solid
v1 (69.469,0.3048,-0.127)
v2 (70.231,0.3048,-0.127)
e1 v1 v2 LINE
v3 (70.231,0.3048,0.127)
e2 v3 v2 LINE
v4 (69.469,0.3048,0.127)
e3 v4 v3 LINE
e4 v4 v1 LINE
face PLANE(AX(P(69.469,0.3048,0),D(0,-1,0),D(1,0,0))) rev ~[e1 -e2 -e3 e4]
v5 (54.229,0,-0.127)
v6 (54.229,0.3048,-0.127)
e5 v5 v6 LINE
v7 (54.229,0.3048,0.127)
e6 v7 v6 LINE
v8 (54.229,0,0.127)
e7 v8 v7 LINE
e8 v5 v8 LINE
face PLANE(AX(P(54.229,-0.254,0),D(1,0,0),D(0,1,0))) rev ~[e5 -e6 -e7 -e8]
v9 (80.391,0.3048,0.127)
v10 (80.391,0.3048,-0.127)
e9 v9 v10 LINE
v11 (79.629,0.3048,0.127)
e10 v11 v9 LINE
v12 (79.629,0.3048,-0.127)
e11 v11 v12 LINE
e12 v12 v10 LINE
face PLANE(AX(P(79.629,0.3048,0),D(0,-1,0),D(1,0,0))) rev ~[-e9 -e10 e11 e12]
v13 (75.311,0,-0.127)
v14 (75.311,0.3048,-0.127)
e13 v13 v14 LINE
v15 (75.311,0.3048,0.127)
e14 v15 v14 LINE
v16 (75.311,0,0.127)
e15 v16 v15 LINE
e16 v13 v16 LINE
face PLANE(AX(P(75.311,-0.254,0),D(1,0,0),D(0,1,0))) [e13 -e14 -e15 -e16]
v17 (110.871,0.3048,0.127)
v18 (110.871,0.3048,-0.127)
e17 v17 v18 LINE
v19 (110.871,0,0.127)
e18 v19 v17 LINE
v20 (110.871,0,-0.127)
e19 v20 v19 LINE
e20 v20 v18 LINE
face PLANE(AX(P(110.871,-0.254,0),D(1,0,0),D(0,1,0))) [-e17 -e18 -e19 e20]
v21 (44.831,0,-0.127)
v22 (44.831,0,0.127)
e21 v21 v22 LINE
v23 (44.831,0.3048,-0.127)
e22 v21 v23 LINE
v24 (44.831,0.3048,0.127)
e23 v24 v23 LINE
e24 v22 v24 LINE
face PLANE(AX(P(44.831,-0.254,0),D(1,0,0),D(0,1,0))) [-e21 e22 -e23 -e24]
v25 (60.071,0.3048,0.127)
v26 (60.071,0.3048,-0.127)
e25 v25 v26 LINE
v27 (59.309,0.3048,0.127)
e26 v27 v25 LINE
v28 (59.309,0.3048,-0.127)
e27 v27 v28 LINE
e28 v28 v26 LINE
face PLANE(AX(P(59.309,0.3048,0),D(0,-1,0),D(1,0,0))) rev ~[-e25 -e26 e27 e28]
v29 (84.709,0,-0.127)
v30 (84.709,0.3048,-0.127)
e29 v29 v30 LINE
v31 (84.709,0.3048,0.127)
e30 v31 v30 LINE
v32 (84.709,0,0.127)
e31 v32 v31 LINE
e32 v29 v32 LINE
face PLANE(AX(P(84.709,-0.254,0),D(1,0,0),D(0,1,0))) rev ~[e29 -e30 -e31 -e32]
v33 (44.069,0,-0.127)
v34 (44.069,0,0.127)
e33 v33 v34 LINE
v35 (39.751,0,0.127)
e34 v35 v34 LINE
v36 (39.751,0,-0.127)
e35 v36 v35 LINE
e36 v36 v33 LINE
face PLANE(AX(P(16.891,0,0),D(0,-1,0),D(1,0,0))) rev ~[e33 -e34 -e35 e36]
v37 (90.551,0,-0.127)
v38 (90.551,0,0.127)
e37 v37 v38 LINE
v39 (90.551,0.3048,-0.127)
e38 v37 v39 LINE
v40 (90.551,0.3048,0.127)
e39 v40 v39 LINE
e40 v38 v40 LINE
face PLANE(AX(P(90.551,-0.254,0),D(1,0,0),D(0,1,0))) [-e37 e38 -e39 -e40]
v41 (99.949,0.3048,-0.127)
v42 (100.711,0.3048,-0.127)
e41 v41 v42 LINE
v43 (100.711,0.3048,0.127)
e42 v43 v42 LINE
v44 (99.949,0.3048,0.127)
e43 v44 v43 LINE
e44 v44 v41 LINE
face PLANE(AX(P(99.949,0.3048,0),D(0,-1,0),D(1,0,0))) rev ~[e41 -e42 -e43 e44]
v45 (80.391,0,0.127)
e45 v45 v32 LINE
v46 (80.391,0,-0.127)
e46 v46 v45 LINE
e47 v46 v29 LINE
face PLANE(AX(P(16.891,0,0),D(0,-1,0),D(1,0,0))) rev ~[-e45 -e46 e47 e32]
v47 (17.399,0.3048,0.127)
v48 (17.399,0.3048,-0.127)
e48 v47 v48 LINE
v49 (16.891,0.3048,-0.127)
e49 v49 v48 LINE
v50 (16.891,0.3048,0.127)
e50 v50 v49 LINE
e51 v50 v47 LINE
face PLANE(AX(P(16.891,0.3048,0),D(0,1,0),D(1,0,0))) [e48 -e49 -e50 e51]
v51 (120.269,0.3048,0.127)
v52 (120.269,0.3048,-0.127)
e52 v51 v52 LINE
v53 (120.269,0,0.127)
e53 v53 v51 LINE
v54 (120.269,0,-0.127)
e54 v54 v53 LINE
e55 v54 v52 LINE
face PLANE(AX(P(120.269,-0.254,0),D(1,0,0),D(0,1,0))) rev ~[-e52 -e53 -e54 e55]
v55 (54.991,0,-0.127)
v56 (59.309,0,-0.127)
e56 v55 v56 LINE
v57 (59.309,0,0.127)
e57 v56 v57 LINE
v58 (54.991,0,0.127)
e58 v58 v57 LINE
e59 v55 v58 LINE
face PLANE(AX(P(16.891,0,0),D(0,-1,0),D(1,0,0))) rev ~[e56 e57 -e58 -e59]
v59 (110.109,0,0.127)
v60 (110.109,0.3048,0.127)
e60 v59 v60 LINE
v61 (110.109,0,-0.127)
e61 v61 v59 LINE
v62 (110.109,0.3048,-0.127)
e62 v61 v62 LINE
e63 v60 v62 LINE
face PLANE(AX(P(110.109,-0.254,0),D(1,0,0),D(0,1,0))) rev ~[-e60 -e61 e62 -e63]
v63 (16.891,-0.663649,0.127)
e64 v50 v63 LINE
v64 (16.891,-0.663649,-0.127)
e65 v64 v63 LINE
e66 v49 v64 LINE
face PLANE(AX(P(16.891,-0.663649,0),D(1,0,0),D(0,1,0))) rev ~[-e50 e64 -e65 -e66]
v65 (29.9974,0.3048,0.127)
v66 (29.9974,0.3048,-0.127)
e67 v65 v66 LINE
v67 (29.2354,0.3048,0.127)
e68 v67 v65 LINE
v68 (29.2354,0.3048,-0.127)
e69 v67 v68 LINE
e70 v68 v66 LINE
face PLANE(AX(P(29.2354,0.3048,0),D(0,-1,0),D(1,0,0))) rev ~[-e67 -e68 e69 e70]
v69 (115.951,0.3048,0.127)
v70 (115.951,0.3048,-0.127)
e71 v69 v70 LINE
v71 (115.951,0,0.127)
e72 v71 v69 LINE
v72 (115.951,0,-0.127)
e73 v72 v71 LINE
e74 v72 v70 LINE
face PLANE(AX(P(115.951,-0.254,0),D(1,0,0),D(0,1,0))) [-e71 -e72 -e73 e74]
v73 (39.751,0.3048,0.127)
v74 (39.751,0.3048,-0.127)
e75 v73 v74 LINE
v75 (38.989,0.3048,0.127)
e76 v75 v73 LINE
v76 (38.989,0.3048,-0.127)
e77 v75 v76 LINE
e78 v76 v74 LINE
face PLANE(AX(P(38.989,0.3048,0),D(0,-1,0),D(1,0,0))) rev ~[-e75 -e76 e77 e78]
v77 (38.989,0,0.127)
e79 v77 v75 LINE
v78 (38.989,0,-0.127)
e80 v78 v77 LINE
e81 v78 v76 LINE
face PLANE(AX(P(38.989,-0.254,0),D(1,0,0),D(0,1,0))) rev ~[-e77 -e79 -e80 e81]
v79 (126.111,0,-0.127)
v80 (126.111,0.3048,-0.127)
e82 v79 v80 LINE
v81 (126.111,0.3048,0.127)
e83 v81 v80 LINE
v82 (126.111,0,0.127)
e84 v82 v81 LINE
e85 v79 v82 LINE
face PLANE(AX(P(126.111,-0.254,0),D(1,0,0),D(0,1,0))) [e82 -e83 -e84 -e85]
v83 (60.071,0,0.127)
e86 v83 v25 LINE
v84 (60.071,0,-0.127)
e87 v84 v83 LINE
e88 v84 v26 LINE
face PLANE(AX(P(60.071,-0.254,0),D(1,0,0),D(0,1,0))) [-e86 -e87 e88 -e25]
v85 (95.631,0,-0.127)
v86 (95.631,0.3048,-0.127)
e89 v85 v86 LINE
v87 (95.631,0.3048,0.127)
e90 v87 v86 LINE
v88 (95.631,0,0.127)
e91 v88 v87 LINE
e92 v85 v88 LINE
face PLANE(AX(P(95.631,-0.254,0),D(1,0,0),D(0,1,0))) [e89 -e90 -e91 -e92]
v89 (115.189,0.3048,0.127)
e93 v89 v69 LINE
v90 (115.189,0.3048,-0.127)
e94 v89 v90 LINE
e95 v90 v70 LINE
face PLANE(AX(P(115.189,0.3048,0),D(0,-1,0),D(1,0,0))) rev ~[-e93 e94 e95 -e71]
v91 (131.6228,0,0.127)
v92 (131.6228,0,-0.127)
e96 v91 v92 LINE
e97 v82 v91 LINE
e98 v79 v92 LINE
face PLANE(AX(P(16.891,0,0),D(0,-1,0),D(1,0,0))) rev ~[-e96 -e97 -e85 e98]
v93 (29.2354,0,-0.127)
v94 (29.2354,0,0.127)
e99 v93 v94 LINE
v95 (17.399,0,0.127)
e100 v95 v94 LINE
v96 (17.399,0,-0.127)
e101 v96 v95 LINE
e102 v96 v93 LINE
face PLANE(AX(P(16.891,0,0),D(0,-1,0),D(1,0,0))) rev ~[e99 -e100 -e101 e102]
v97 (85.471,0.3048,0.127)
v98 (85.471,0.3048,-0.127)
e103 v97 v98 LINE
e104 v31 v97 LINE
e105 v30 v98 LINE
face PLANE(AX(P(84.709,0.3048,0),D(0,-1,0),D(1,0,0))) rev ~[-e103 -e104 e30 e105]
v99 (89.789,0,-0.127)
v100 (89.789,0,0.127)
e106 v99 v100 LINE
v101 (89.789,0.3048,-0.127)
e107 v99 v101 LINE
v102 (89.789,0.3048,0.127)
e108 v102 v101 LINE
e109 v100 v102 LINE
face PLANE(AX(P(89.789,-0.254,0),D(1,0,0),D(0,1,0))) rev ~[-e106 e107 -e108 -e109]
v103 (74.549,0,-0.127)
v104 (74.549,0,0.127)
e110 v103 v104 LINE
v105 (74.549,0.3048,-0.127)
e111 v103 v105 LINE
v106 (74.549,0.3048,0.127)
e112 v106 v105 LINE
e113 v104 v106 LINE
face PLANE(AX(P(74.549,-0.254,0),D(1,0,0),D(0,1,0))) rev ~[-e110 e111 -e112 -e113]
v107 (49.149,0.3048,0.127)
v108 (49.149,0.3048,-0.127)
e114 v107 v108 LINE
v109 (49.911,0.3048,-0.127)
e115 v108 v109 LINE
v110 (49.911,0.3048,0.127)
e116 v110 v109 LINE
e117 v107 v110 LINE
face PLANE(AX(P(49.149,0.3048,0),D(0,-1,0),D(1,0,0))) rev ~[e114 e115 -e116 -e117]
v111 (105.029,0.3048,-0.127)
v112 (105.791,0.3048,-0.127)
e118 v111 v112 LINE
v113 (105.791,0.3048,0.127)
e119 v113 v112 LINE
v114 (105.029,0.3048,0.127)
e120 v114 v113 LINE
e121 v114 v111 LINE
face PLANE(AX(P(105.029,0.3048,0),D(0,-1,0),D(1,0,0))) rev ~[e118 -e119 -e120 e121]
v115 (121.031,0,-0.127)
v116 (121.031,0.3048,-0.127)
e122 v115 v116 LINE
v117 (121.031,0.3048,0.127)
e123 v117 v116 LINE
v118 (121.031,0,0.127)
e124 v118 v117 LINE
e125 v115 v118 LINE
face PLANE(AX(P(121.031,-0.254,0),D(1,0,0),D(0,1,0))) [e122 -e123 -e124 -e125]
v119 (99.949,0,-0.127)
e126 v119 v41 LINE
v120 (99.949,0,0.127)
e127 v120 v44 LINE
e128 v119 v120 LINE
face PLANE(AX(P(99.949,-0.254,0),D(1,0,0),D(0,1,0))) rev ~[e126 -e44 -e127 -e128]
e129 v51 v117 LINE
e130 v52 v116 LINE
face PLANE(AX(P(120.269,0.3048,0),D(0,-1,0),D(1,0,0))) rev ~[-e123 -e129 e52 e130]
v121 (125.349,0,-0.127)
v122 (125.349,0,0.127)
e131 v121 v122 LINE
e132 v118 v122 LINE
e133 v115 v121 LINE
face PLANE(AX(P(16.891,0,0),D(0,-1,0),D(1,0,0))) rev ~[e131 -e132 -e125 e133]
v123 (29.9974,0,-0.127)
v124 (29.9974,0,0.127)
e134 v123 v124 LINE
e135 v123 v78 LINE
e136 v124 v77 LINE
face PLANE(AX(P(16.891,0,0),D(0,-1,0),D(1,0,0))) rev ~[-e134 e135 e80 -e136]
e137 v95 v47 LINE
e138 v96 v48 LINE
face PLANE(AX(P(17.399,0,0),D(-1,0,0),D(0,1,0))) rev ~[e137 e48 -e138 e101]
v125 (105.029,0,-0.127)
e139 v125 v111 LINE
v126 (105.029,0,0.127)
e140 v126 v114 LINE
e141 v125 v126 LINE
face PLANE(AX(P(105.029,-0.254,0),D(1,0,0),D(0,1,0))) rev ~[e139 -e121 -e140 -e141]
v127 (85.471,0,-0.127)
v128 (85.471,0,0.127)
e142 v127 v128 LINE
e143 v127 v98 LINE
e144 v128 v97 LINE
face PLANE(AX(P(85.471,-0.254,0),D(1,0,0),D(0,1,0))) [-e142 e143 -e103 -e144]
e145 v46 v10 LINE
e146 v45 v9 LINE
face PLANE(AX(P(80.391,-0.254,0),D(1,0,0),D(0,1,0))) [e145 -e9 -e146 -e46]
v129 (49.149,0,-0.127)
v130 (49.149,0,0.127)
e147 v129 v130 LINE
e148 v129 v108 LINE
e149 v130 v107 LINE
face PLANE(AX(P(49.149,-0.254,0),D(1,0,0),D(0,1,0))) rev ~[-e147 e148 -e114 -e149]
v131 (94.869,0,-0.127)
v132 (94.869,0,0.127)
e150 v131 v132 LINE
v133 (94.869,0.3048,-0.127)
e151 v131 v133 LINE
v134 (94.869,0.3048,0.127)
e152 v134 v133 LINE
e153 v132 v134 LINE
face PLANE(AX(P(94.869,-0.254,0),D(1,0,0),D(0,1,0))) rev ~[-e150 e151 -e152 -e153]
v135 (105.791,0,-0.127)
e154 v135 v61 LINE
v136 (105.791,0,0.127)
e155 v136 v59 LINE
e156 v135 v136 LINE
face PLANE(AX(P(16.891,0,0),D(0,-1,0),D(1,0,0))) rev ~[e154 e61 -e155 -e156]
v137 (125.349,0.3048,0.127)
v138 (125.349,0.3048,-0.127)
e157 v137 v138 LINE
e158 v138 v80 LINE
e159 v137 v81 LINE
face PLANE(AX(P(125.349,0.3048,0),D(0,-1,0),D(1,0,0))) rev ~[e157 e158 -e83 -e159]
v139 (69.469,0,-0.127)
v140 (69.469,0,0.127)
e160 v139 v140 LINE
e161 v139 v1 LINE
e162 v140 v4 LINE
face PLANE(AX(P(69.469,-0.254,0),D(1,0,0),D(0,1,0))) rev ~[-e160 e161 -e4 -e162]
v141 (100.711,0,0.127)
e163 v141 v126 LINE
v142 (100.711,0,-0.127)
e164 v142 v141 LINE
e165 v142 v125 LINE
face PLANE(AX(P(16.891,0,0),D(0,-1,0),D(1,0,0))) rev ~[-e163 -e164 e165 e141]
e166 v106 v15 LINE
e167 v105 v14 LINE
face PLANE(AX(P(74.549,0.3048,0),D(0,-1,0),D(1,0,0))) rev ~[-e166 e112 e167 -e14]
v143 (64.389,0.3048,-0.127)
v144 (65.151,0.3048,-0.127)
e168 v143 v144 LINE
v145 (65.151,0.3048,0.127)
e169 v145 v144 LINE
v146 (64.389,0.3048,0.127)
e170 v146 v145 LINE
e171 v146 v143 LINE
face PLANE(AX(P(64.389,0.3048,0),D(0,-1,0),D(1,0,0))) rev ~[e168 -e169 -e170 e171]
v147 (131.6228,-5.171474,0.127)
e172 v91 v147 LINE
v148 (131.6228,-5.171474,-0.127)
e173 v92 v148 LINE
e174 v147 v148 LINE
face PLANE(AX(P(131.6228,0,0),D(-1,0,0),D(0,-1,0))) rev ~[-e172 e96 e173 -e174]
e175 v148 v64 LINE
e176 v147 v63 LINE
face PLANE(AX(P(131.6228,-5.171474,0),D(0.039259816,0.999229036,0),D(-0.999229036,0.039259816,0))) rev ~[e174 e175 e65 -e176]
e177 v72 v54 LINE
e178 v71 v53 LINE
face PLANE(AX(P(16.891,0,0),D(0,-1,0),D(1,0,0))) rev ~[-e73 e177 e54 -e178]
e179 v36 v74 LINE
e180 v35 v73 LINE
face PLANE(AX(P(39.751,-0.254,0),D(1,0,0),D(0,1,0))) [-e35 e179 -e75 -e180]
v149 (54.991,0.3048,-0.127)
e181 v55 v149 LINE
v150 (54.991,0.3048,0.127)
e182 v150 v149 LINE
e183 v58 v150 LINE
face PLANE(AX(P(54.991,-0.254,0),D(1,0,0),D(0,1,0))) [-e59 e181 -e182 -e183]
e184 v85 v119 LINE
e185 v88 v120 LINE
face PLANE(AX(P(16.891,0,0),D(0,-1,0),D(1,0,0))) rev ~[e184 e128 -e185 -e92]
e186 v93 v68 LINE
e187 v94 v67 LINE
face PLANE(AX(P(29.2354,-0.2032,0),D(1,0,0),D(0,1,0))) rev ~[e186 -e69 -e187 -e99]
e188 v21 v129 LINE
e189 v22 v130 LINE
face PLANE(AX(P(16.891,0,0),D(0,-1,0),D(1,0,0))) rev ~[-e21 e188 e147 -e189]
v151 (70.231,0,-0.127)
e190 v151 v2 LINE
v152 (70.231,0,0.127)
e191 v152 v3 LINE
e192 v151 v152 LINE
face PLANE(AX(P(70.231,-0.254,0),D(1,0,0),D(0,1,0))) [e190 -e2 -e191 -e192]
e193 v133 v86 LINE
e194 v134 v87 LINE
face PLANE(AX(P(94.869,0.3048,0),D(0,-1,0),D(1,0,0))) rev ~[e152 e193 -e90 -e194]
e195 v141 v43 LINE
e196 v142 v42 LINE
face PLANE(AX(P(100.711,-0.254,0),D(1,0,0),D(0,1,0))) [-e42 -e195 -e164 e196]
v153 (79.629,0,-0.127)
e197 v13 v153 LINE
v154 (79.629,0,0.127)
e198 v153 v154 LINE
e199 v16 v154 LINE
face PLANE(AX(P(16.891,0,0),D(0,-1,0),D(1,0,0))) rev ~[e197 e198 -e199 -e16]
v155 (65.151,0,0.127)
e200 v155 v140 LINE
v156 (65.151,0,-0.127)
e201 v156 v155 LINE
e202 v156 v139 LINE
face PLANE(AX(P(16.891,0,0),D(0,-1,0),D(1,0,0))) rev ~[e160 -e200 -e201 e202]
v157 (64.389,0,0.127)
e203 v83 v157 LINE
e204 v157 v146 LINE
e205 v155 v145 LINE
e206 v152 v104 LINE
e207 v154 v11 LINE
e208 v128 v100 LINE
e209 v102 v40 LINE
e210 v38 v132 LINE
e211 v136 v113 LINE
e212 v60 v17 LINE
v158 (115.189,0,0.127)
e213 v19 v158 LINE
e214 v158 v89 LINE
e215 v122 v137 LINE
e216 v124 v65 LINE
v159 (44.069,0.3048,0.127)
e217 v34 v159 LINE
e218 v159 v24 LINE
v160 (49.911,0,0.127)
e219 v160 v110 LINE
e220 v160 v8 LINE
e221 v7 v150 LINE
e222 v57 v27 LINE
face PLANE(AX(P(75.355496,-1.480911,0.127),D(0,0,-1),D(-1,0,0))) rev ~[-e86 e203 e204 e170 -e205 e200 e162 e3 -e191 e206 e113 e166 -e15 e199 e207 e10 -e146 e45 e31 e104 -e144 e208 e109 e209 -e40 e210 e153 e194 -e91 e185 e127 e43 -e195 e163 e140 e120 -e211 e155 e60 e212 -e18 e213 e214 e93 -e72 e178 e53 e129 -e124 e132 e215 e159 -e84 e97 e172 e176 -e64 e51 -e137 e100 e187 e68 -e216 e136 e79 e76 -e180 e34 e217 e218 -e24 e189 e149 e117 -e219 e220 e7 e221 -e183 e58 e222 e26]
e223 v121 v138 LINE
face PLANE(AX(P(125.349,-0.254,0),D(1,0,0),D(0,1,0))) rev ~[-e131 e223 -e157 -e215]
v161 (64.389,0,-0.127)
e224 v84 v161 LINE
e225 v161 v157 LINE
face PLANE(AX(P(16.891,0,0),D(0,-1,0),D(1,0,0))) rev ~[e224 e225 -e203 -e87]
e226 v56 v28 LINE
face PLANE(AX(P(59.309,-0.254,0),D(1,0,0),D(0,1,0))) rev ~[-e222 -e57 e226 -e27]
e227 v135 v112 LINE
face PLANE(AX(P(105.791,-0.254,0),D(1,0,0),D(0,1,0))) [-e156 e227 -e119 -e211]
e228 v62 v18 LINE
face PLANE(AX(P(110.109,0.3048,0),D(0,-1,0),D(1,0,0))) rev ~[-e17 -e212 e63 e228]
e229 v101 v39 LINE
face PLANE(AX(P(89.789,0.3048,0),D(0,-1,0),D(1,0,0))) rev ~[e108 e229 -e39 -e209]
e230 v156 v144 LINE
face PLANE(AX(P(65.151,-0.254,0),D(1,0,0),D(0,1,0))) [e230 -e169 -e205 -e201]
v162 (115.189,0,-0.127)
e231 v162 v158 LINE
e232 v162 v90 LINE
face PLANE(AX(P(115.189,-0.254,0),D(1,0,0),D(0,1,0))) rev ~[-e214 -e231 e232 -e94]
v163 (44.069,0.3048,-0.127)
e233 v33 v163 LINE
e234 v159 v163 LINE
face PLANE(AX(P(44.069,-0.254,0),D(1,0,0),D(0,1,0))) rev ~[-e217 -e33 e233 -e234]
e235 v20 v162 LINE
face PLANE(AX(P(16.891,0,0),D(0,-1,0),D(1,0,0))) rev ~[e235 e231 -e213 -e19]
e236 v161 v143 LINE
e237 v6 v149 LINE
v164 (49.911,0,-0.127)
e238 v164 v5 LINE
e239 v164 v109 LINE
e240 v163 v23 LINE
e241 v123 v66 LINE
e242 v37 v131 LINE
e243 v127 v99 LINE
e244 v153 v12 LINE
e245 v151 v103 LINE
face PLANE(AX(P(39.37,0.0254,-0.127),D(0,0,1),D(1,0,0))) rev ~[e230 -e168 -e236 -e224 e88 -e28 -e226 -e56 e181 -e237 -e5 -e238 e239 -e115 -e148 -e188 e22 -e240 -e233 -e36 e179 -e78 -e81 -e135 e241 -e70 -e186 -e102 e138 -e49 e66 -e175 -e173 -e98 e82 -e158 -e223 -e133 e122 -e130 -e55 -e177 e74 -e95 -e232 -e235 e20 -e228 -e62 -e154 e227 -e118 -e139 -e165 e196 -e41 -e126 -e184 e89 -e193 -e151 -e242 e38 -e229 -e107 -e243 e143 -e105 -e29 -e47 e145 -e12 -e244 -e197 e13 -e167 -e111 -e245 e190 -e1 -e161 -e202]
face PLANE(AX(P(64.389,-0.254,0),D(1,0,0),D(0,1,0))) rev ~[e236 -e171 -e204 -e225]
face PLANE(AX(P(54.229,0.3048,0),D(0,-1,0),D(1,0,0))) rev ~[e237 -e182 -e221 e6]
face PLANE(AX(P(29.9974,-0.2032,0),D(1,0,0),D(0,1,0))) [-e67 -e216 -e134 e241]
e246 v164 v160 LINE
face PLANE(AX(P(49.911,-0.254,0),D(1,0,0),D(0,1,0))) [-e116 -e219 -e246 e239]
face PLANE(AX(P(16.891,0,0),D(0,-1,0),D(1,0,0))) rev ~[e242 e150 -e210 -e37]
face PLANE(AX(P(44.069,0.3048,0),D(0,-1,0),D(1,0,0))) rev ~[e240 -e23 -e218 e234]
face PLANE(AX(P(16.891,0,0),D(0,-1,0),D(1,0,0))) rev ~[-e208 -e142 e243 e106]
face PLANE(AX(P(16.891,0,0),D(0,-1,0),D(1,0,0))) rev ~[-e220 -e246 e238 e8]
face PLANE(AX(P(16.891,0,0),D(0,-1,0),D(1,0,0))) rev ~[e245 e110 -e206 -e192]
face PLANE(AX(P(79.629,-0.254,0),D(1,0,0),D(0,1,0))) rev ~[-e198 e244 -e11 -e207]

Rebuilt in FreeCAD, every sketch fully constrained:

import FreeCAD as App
import Part
import Sketcher

V = App.Vector
Q = App.Units.Quantity


def add_polygon(sketch, points):
    """Adds a closed chain of lines whose ends are joined by coincident constraints."""
    first, n = sketch.GeometryCount, len(points)
    for a, b in zip(points, points[1:] + points[:1]):
        sketch.addGeometry(Part.LineSegment(App.Vector(*a, 0), App.Vector(*b, 0)), False)
    for i in range(n):
        sketch.addConstraint(Sketcher.Constraint("Coincident", first + i, 2, first + (i + 1) % n, 1))

doc = App.newDocument("Part")
body = doc.addObject("PartDesign::Body", "Body")

# Sketch on XY plane
sketch1 = body.newObject("Sketcher::SketchObject", "Sketch")
sketch1.AttachmentSupport = (doc.getObject("XY_Plane"), [""])
sketch1.MapMode = "FlatFace"
add_polygon(sketch1, [(131.6, 0), (16.9, 0), (16.9, -0.7), (131.6, -5.2)])  # lines 0-3
sketch1.addConstraint([
    Sketcher.Constraint("Horizontal", 0),
    Sketcher.Constraint("Vertical", 1),
    Sketcher.Constraint("Vertical", 3),
    Sketcher.Constraint("PointOnObject", 0, 2, -1),
    Sketcher.Constraint("DistanceX", 0, 2, 0, 1, Q("4.517 in")),
    Sketcher.Constraint("Angle", 2, Q("-2.25 deg")),
    Sketcher.Constraint("DistanceX", -1, 1, 0, 2, Q("0.665 in")),
    Sketcher.Constraint("DistanceY", 1, 2, 1, 1, Q("0.663649 mm")),
])
pad1 = body.newObject("PartDesign::Pad", "Pad")
pad1.Profile = sketch1
pad1.Length = Q("0.01 in")
pad1.Midplane = True

# Sketch on XY plane
sketch2 = body.newObject("Sketcher::SketchObject", "Sketch001")
sketch2.AttachmentSupport = (doc.getObject("XY_Plane"), [""])
sketch2.MapMode = "FlatFace"
add_polygon(sketch2, [(16.89, 0.3), (16.89, 0), (17.4, 0), (17.4, 0.3)])  # lines 0-3
add_polygon(sketch2, [(29.24, 0.3), (29.24, -0.2), (30, -0.2), (30, 0.3)])  # lines 4-7
sketch2.addConstraint([
    Sketcher.Constraint("Vertical", 0),
    Sketcher.Constraint("Horizontal", 1),
    Sketcher.Constraint("Vertical", 2),
    Sketcher.Constraint("Horizontal", 3),
    Sketcher.Constraint("Vertical", 4),
    Sketcher.Constraint("Horizontal", 5),
    Sketcher.Constraint("Vertical", 6),
    Sketcher.Constraint("Horizontal", 7),
    Sketcher.Constraint("PointOnObject", 0, 2, -1),
    Sketcher.Constraint("Horizontal", 3, 2, 6, 2),
    Sketcher.Constraint("Equal", 3, 4),
    Sketcher.Constraint("DistanceX", 1, 1, 1, 2, Q("0.02 in")),
    Sketcher.Constraint("DistanceX", 5, 1, 5, 2, Q("0.03 in")),
    Sketcher.Constraint("DistanceY", 0, 2, 0, 1, Q("0.012 in")),
    Sketcher.Constraint("DistanceX", -1, 1, 0, 2, Q("0.665 in")),
    Sketcher.Constraint("DistanceX", -1, 1, 4, 2, Q("1.151 in")),
])
pad2 = body.newObject("PartDesign::Pad", "Pad001")
pad2.Profile = sketch2
pad2.Length = Q("0.01 in")
pad2.Midplane = True

# Sketch on XY plane
sketch3 = body.newObject("Sketcher::SketchObject", "Sketch002")
sketch3.AttachmentSupport = (doc.getObject("XY_Plane"), [""])
sketch3.MapMode = "FlatFace"
add_polygon(sketch3, [(39, 0.3), (39, -0.3), (39.8, -0.3), (39.8, 0.3)])  # lines 0-3
sketch3.addConstraint([
    Sketcher.Constraint("Vertical", 0),
    Sketcher.Constraint("Horizontal", 1),
    Sketcher.Constraint("Vertical", 2),
    Sketcher.Constraint("Horizontal", 3),
    Sketcher.Constraint("DistanceX", 1, 1, 1, 2, Q("0.03 in")),
    Sketcher.Constraint("DistanceY", 0, 2, 0, 1, Q("0.022 in")),
    Sketcher.Constraint("DistanceY", 0, 2, -1, 1, Q("0.01 in")),
    Sketcher.Constraint("DistanceX", -1, 1, 0, 2, Q("1.535 in")),
])
pad3 = body.newObject("PartDesign::Pad", "Pad002")
pad3.Profile = sketch3
pad3.Length = Q("0.01 in")
pad3.Midplane = True
doc.recompute()

linearpattern = body.newObject("PartDesign::LinearPattern", "LinearPattern")
linearpattern.Originals = [pad3]
linearpattern.Direction = (doc.getObject("X_Axis"), [""])
linearpattern.Mode = "offset"
linearpattern.Offset = Q("0.2 in")
linearpattern.Occurrences = 18
body.Tip = linearpattern

doc.recompute()
